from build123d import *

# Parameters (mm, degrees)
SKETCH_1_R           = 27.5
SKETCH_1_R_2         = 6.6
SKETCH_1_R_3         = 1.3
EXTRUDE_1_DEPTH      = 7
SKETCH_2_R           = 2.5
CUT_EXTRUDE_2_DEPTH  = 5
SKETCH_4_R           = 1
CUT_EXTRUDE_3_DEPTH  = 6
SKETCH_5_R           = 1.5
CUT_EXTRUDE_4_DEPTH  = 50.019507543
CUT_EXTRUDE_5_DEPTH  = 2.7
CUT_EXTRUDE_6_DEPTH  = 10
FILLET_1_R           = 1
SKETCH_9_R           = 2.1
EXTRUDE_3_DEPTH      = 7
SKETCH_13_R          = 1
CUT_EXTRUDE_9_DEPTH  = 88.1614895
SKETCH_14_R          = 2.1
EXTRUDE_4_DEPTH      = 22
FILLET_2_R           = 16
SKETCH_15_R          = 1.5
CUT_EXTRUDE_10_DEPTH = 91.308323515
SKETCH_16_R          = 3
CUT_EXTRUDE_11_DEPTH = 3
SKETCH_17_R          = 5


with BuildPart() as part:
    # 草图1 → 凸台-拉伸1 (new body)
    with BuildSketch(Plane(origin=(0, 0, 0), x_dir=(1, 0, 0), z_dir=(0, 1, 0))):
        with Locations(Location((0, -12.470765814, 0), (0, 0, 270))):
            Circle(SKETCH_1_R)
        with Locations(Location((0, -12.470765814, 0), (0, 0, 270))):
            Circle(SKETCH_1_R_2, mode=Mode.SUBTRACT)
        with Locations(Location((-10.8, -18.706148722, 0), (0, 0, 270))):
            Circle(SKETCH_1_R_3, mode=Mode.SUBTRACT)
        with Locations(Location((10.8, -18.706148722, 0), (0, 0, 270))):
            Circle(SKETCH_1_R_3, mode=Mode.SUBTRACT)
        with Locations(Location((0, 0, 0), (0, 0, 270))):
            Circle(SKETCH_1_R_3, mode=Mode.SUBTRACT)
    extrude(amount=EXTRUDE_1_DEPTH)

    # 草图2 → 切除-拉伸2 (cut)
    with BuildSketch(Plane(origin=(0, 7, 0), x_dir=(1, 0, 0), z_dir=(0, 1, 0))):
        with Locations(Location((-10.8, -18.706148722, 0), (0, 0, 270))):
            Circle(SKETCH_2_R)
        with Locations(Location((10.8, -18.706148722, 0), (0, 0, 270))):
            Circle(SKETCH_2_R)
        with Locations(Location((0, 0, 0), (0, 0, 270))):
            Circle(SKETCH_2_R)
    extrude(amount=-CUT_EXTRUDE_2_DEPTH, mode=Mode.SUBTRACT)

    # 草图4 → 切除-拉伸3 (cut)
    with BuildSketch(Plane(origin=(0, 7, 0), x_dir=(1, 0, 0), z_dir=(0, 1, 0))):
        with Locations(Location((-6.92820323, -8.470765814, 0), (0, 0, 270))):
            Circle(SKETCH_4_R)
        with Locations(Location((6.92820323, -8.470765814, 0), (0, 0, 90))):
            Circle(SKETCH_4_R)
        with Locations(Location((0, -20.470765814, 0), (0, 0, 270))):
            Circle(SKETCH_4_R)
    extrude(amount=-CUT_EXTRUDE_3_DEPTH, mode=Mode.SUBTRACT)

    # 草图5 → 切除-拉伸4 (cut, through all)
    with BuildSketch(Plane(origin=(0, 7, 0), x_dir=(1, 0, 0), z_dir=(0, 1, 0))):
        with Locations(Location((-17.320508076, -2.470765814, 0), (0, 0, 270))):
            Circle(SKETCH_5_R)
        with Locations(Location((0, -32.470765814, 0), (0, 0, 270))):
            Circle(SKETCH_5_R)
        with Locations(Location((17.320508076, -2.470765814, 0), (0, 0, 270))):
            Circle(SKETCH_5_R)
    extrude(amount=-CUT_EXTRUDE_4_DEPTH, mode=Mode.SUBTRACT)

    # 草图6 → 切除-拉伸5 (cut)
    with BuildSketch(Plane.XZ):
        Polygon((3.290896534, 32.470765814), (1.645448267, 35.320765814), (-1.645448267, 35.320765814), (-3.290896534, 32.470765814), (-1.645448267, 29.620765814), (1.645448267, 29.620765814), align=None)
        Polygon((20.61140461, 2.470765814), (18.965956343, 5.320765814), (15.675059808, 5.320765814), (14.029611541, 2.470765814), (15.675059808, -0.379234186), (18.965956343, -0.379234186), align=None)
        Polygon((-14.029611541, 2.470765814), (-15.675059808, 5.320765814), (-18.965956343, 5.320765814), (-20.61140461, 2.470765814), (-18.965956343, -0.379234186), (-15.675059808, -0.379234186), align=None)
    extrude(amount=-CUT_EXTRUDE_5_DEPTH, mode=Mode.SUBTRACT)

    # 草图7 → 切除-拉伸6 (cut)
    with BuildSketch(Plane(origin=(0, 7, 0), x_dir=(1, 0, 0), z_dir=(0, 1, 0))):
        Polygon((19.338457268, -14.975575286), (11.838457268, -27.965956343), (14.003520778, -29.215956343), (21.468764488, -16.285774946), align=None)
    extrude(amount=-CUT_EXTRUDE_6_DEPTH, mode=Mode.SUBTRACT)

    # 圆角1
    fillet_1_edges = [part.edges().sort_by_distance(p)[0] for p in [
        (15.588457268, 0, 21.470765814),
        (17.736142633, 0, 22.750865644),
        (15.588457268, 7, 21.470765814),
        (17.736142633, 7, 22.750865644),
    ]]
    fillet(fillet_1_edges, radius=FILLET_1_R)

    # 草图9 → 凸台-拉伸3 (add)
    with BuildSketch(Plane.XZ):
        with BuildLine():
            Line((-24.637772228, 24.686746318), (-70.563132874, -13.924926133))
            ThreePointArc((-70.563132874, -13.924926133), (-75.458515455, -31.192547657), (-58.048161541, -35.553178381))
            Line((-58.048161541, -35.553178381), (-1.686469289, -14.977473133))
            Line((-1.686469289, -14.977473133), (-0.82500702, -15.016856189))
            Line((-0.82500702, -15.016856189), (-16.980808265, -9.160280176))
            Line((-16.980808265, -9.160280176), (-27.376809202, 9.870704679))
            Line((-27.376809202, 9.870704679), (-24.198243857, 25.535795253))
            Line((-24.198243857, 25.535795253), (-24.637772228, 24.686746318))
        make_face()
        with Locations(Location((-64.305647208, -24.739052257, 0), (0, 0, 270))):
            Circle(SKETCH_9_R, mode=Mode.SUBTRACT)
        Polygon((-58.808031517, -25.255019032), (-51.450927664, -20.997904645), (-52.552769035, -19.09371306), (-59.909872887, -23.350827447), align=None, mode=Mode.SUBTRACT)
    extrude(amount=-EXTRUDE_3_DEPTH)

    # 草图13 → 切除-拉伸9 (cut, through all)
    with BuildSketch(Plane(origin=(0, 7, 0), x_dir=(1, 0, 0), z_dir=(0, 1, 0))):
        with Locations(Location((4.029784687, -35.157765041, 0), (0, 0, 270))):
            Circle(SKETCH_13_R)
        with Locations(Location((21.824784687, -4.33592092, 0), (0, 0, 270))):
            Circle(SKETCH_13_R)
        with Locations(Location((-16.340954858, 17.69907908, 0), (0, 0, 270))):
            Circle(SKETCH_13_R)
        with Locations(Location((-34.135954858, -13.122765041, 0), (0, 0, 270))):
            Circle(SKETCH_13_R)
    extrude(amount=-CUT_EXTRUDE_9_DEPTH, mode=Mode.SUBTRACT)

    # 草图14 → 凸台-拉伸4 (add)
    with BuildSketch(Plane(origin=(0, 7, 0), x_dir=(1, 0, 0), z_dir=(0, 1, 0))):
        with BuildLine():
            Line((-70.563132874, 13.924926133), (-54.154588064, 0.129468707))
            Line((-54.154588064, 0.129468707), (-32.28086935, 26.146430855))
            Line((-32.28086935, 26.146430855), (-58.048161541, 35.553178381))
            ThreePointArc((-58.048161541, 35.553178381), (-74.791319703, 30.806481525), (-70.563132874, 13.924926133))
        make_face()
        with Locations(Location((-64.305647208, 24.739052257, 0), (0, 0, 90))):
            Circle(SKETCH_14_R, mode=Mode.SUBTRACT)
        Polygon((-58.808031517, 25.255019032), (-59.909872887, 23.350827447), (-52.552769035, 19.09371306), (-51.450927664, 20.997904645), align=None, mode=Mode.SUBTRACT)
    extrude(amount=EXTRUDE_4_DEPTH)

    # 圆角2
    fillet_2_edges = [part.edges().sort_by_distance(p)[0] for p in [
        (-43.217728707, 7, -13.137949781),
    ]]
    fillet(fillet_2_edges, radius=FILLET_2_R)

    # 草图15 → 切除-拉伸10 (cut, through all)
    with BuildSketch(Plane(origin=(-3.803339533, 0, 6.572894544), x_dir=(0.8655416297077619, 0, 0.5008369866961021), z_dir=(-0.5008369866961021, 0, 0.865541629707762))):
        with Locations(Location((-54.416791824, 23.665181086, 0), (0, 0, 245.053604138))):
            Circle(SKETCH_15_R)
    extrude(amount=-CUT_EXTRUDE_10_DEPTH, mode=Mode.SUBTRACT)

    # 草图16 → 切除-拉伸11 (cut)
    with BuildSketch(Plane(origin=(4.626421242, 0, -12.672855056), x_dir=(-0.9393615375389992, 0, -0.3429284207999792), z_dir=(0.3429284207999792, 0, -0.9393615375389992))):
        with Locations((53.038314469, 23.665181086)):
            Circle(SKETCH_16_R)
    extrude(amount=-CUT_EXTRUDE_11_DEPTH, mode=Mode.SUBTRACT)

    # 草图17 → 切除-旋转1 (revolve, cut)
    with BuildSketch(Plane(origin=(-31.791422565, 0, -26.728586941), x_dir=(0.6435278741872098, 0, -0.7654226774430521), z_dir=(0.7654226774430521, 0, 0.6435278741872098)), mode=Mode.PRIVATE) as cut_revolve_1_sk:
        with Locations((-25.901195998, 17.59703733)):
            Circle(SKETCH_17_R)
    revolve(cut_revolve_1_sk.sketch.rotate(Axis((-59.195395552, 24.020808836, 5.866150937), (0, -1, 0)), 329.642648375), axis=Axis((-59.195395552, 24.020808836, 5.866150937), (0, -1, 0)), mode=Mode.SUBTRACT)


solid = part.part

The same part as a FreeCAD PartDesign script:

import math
import FreeCAD as App
import Part
import Sketcher
from FreeCAD import Vector
Q = App.Units.Quantity


def edges_at(feature, points):
    """Names of the edges that pass closest to the given points."""
    edges = feature.Shape.Edges
    near = lambda p: min(range(len(edges)), key=lambda i: edges[i].distToShape(Part.Vertex(*p))[0])
    return sorted({f"Edge{near(p) + 1}" for p in points})


def add_polygon(sketch, points):
    """Adds a closed chain of lines whose ends are joined by coincident constraints."""
    first, n = sketch.GeometryCount, len(points)
    for a, b in zip(points, points[1:] + points[:1]):
        sketch.addGeometry(Part.LineSegment(App.Vector(*a, 0), App.Vector(*b, 0)), False)
    for i in range(n):
        sketch.addConstraint(Sketcher.Constraint("Coincident", first + i, 2, first + (i + 1) % n, 1))

doc = App.newDocument("Part")
body = doc.addObject("PartDesign::Body", "Body")

sketch1 = doc.addObject("Sketcher::SketchObject", "Sketch")
body.addObject(sketch1)
sketch1.AttachmentSupport = (doc.XZ_Plane, [""])
sketch1.MapMode = "FlatFace"
sketch1.addGeometry([
    Part.Circle(Vector(0, 12.5, 0), Vector(0, 0, 1), 27.5),
    Part.Circle(Vector(0, 0, 0), Vector(0, 0, 1), 1.3),
    Part.Circle(Vector(-10.8, 18.7, 0), Vector(0, 0, 1), 1.3),
    Part.Circle(Vector(0, 12.5, 0), Vector(0, 0, 1), 6.6),
    Part.Circle(Vector(10.8, 18.7, 0), Vector(0, 0, 1), 1.3),
], False)
sketch1.addConstraint([
    Sketcher.Constraint("Coincident", 1, 3, -1, 1),
    Sketcher.Constraint("Coincident", 3, 3, 0, 3),
    Sketcher.Constraint("Equal", 1, 2),
    Sketcher.Constraint("Equal", 2, 4),
    Sketcher.Constraint("Symmetric", 2, 3, 4, 3, -2),
    Sketcher.Constraint("PointOnObject", 0, 3, -2),
    Sketcher.Constraint("Diameter", 0, Q("55 mm")),
    Sketcher.Constraint("Diameter", 1, Q("2.6 mm")),
    Sketcher.Constraint("Diameter", 3, Q("13.2 mm")),
    Sketcher.Constraint("DistanceX", 2, 3, -1, 1, Q("10.8 mm")),
    Sketcher.Constraint("DistanceY", -1, 1, 2, 3, Q("18.706149 mm")),
    Sketcher.Constraint("DistanceY", -1, 1, 0, 3, Q("12.470766 mm")),
])
pad1 = doc.addObject("PartDesign::Pad", "Pad")
body.addObject(pad1)
pad1.Profile = sketch1
pad1.Length = 7
pad1.Reversed = True

sketch2 = doc.addObject("Sketcher::SketchObject", "Sketch001")
body.addObject(sketch2)
sketch2.AttachmentSupport = (doc.XZ_Plane, [""])
sketch2.MapMode = "FlatFace"
sketch2.AttachmentOffset = App.Placement(Vector(0, 0, -7), App.Rotation())
sketch2.addGeometry([
    Part.Circle(Vector(-10.8, 18.7, 0), Vector(0, 0, 1), 2.5),
    Part.Circle(Vector(10.8, 18.7, 0), Vector(0, 0, 1), 2.5),
    Part.Circle(Vector(0, 0, 0), Vector(0, 0, 1), 2.5),
], False)
sketch2.addConstraint([
    Sketcher.Constraint("Coincident", 2, 3, -1, 1),
    Sketcher.Constraint("Equal", 0, 1),
    Sketcher.Constraint("Equal", 1, 2),
    Sketcher.Constraint("Symmetric", 0, 3, 1, 3, -2),
    Sketcher.Constraint("Diameter", 0, Q("5 mm")),
    Sketcher.Constraint("DistanceX", 0, 3, -1, 1, Q("10.8 mm")),
    Sketcher.Constraint("DistanceY", -1, 1, 0, 3, Q("18.706149 mm")),
])
pocket1 = doc.addObject("PartDesign::Pocket", "Pocket")
body.addObject(pocket1)
pocket1.Profile = sketch2
pocket1.Length = 5
pocket1.Reversed = True

sketch3 = doc.addObject("Sketcher::SketchObject", "Sketch002")
body.addObject(sketch3)
sketch3.AttachmentSupport = (doc.XZ_Plane, [""])
sketch3.MapMode = "FlatFace"
sketch3.AttachmentOffset = App.Placement(Vector(0, 0, -7), App.Rotation())
sketch3.addGeometry([
    Part.Circle(Vector(-6.9, 8.5, 0), Vector(0, 0, 1), 1),
    Part.Circle(Vector(6.9, 8.5, 0), Vector(0, 0, 1), 1),
    Part.Circle(Vector(0, 20.5, 0), Vector(0, 0, 1), 1),
], False)
sketch3.addConstraint([
    Sketcher.Constraint("Equal", 0, 1),
    Sketcher.Constraint("Equal", 1, 2),
    Sketcher.Constraint("Symmetric", 0, 3, 1, 3, -2),
    Sketcher.Constraint("PointOnObject", 2, 3, -2),
    Sketcher.Constraint("Diameter", 0, Q("2 mm")),
    Sketcher.Constraint("DistanceY", 0, 3, 2, 3, Q("12 mm")),
    Sketcher.Constraint("DistanceX", 0, 3, -1, 1, Q("6.928203 mm")),
    Sketcher.Constraint("DistanceY", -1, 1, 0, 3, Q("8.470766 mm")),
])
pocket2 = doc.addObject("PartDesign::Pocket", "Pocket001")
body.addObject(pocket2)
pocket2.Profile = sketch3
pocket2.Length = 6
pocket2.Reversed = True

sketch4 = doc.addObject("Sketcher::SketchObject", "Sketch003")
body.addObject(sketch4)
sketch4.AttachmentSupport = (doc.XZ_Plane, [""])
sketch4.MapMode = "FlatFace"
sketch4.AttachmentOffset = App.Placement(Vector(0, 0, -7), App.Rotation())
sketch4.addGeometry([
    Part.Circle(Vector(-17.3, 2.5, 0), Vector(0, 0, 1), 1.5),
    Part.Circle(Vector(0, 32.5, 0), Vector(0, 0, 1), 1.5),
    Part.Circle(Vector(17.3, 2.5, 0), Vector(0, 0, 1), 1.5),
], False)
sketch4.addConstraint([
    Sketcher.Constraint("Equal", 0, 1),
    Sketcher.Constraint("Equal", 1, 2),
    Sketcher.Constraint("Symmetric", 0, 3, 2, 3, -2),
    Sketcher.Constraint("PointOnObject", 1, 3, -2),
    Sketcher.Constraint("Diameter", 0, Q("3 mm")),
    Sketcher.Constraint("DistanceY", 0, 3, 1, 3, Q("30 mm")),
    Sketcher.Constraint("DistanceX", 0, 3, -1, 1, Q("17.320508 mm")),
    Sketcher.Constraint("DistanceY", -1, 1, 0, 3, Q("2.470766 mm")),
])
pocket3 = doc.addObject("PartDesign::Pocket", "Pocket002")
body.addObject(pocket3)
pocket3.Profile = sketch4
pocket3.Type = "ThroughAll"
pocket3.Reversed = True

sketch5 = doc.addObject("Sketcher::SketchObject", "Sketch004")
body.addObject(sketch5)
sketch5.AttachmentSupport = (doc.XZ_Plane, [""])
sketch5.MapMode = "FlatFace"
add_polygon(sketch5, [(3.3, 32.5), (1.6, 35.3), (-1.6, 35.3), (-3.3, 32.5), (-1.6, 29.6), (1.6, 29.6)])
add_polygon(sketch5, [(20.6, 2.5), (19, 5.3), (15.7, 5.3), (14, 2.5), (15.7, -0.4), (19, -0.4)])
add_polygon(sketch5, [(-14, 2.5), (-15.7, 5.3), (-19, 5.3), (-20.6, 2.5), (-19, -0.4), (-15.7, -0.4)])
sketch5.addConstraint([
    Sketcher.Constraint("Horizontal", 1),
    Sketcher.Constraint("Horizontal", 4),
    Sketcher.Constraint("Horizontal", 7),
    Sketcher.Constraint("Horizontal", 10),
    Sketcher.Constraint("Horizontal", 13),
    Sketcher.Constraint("Horizontal", 16),
    Sketcher.Constraint("Symmetric", 2, 2, 5, 2, -2),
    Sketcher.Constraint("Symmetric", 7, 2, 12, 2, -2),
    Sketcher.Constraint("Symmetric", 11, 2, 14, 2, -2),
    Sketcher.Constraint("Symmetric", 10, 2, 15, 2, -2),
    Sketcher.Constraint("Symmetric", 8, 2, 17, 2, -2),
    Sketcher.Constraint("Parallel", 0, 3),
    Sketcher.Constraint("Parallel", 2, 5),
    Sketcher.Constraint("Parallel", 3, 6),
    Sketcher.Constraint("Parallel", 5, 8),
    Sketcher.Constraint("Parallel", 6, 9),
    Sketcher.Constraint("Parallel", 8, 11),
    Sketcher.Constraint("Parallel", 9, 12),
    Sketcher.Constraint("Parallel", 11, 14),
    Sketcher.Constraint("Parallel", 14, 17),
    Sketcher.Constraint("Horizontal", 8, 2, 11, 2),
    Sketcher.Constraint("Vertical", 1, 2, 3, 2),
    Sketcher.Constraint("Vertical", 7, 2, 9, 2),
    Sketcher.Constraint("Equal", 4, 7),
    Sketcher.Constraint("Equal", 5, 6),
    Sketcher.Constraint("Angle", 0, Q("120 deg")),
    Sketcher.Constraint("DistanceY", 6, 2, 0, 2, Q("30 mm")),
    Sketcher.Constraint("DistanceY", 3, 2, 1, 2, Q("5.7 mm")),
    Sketcher.Constraint("DistanceX", 1, 2, 1, 1, Q("3.290897 mm")),
    Sketcher.Constraint("DistanceX", -1, 1, 7, 2, Q("15.67506 mm")),
    Sketcher.Constraint("DistanceY", -1, 1, 0, 2, Q("35.320766 mm")),
])
pocket4 = doc.addObject("PartDesign::Pocket", "Pocket003")
body.addObject(pocket4)
pocket4.Profile = sketch5
pocket4.Length = 2.7

sketch6 = doc.addObject("Sketcher::SketchObject", "Sketch005")
body.addObject(sketch6)
sketch6.AttachmentSupport = (doc.XZ_Plane, [""])
sketch6.MapMode = "FlatFace"
sketch6.AttachmentOffset = App.Placement(Vector(0, 0, -7), App.Rotation())
add_polygon(sketch6, [(19.3, 15), (11.8, 28), (14, 29.2), (21.5, 16.3)])
sketch6.addConstraint([
    Sketcher.Constraint("Perpendicular", 0, 1),
    Sketcher.Constraint("Perpendicular", 1, 2),
    Sketcher.Constraint("Angle", 0, Q("120 deg")),
    Sketcher.Constraint("Distance", 0, Q("15 mm")),
    Sketcher.Constraint("Distance", 1, Q("2.5 mm")),
    Sketcher.Constraint("DistanceY", 3, 2, 2, 2, Q("1.3102 mm")),
    Sketcher.Constraint("DistanceX", -1, 1, 1, 2, Q("14.003521 mm")),
    Sketcher.Constraint("DistanceY", -1, 1, 0, 2, Q("27.965956 mm")),
])
pocket5 = doc.addObject("PartDesign::Pocket", "Pocket004")
body.addObject(pocket5)
pocket5.Profile = sketch6
pocket5.Length = 10
pocket5.Reversed = True
doc.recompute()

fillet = doc.addObject("PartDesign::Fillet", "Fillet")
body.addObject(fillet)
fillet.Base = (pocket5, edges_at(pocket5, [
    (15.588, 0, 21.471),
    (17.736, 0, 22.751),
    (15.588, 7, 21.471),
    (17.736, 7, 22.751),
]))
fillet.Radius = 1

sketch7 = doc.addObject("Sketcher::SketchObject", "Sketch006")
body.addObject(sketch7)
sketch7.AttachmentSupport = (doc.XZ_Plane, [""])
sketch7.MapMode = "FlatFace"
sketch7.addGeometry(Part.LineSegment(Vector(-24.6, 24.7, 0), Vector(-70.6, -13.9, 0)), False)
sketch7.addGeometry(Part.ArcOfCircle(Part.Circle(Vector(-64.6, -24.9, 0), Vector(0, 0, 1), 12.5), math.radians(118), math.radians(302)), False)
sketch7.addGeometry(Part.LineSegment(Vector(-58, -35.6, 0), Vector(-1.7, -15, 0)), False)
sketch7.addGeometry(Part.LineSegment(Vector(-1.7, -15, 0), Vector(-0.8, -15, 0)), False)
sketch7.addGeometry(Part.LineSegment(Vector(-0.8, -15, 0), Vector(-17, -9.2, 0)), False)
sketch7.addGeometry(Part.LineSegment(Vector(-17, -9.2, 0), Vector(-27.4, 9.9, 0)), False)
sketch7.addGeometry(Part.LineSegment(Vector(-27.4, 9.9, 0), Vector(-24.2, 25.5, 0)), False)
sketch7.addGeometry(Part.LineSegment(Vector(-24.2, 25.5, 0), Vector(-24.6, 24.7, 0)), False)
sketch7.addGeometry(Part.Circle(Vector(-64.3, -24.7, 0), Vector(0, 0, 1), 2.1), False)
add_polygon(sketch7, [(-51.5, -21), (-58.8, -25.3), (-59.9, -23.4), (-52.6, -19.1)])
sketch7.addConstraint([
    Sketcher.Constraint("Coincident", 0, 2, 1, 1),
    Sketcher.Constraint("Coincident", 1, 2, 2, 1),
    Sketcher.Constraint("Coincident", 2, 2, 3, 1),
    Sketcher.Constraint("Coincident", 3, 2, 4, 1),
    Sketcher.Constraint("Coincident", 4, 2, 5, 1),
    Sketcher.Constraint("Coincident", 5, 2, 6, 1),
    Sketcher.Constraint("Coincident", 6, 2, 7, 1),
    Sketcher.Constraint("Coincident", 7, 2, 0, 1),
    Sketcher.Constraint("Perpendicular", 9, 10),
    Sketcher.Constraint("Perpendicular", 10, 11),
    Sketcher.Constraint("Perpendicular", 11, 12),
    Sketcher.Constraint("Equal", 0, 2),
    Sketcher.Constraint("Diameter", 8, Q("4.2 mm")),
    Sketcher.Constraint("Radius", 1, Q("12.5 mm")),
    Sketcher.Constraint("Distance", 0, Q("60 mm")),
    Sketcher.Constraint("Distance", 9, Q("8.5 mm")),
    Sketcher.Constraint("Distance", 10, Q("2.2 mm")),
    Sketcher.Constraint("DistanceX", 5, 2, 4, 2, Q("10.396001 mm")),
    Sketcher.Constraint("DistanceX", 4, 2, 3, 2, Q("16.155801 mm")),
    Sketcher.Constraint("DistanceY", 1, 2, 4, 2, Q("26.392898 mm")),
    Sketcher.Constraint("DistanceX", 0, 2, 9, 2, Q("11.755101 mm")),
    Sketcher.Constraint("DistanceY", 10, 2, 0, 2, Q("9.425901 mm")),
    Sketcher.Constraint("Distance", 4, Q("17.184569 mm")),
    Sketcher.Constraint("Distance", 5, Q("21.685369 mm")),
    Sketcher.Constraint("Distance", 7, Q("0.95607 mm")),
    Sketcher.Constraint("DistanceX", 1, 2, -1, 1, Q("58.048162 mm")),
    Sketcher.Constraint("DistanceY", 1, 2, -1, 1, Q("35.553178 mm")),
    Sketcher.Constraint("DistanceX", 2, 2, -1, 1, Q("1.686469 mm")),
    Sketcher.Constraint("DistanceX", 4, 2, -1, 1, Q("16.980808 mm")),
    Sketcher.Constraint("DistanceX", 9, 2, -1, 1, Q("58.808032 mm")),
    Sketcher.Constraint("DistanceY", 9, 2, -1, 1, Q("25.255019 mm")),
    Sketcher.Constraint("DistanceX", 11, 2, -1, 1, Q("52.552769 mm")),
    Sketcher.Constraint("DistanceY", 8, 3, 2, 2, Q("9.761579 mm")),
    Sketcher.Constraint("DistanceX", 8, 3, 3, 2, Q("63.48064 mm")),
    Sketcher.Constraint("DistanceY", 5, 2, 6, 2, Q("15.665091 mm")),
    Sketcher.Constraint("DistanceX", 0, 2, 6, 2, Q("46.364889 mm")),
])
pad2 = doc.addObject("PartDesign::Pad", "Pad001")
body.addObject(pad2)
pad2.Profile = sketch7
pad2.Length = 7
pad2.Reversed = True

sketch8 = doc.addObject("Sketcher::SketchObject", "Sketch007")
body.addObject(sketch8)
sketch8.AttachmentSupport = (doc.XZ_Plane, [""])
sketch8.MapMode = "FlatFace"
sketch8.AttachmentOffset = App.Placement(Vector(0, 0, -7), App.Rotation())
sketch8.addGeometry([
    Part.Circle(Vector(4, 35.2, 0), Vector(0, 0, 1), 1),
    Part.Circle(Vector(21.8, 4.3, 0), Vector(0, 0, 1), 1),
    Part.Circle(Vector(-16.3, -17.7, 0), Vector(0, 0, 1), 1),
    Part.Circle(Vector(-34.1, 13.1, 0), Vector(0, 0, 1), 1),
], False)
sketch8.addConstraint([
    Sketcher.Constraint("Equal", 0, 1),
    Sketcher.Constraint("Equal", 1, 2),
    Sketcher.Constraint("Equal", 2, 3),
    Sketcher.Constraint("Diameter", 0, Q("2 mm")),
    Sketcher.Constraint("DistanceX", 0, 3, 1, 3, Q("17.795 mm")),
    Sketcher.Constraint("DistanceY", 2, 3, 1, 3, Q("22.035 mm")),
    Sketcher.Constraint("DistanceX", 3, 3, 2, 3, Q("17.795 mm")),
    Sketcher.Constraint("DistanceY", 3, 3, 0, 3, Q("22.035 mm")),
    Sketcher.Constraint("DistanceY", -1, 1, 1, 3, Q("4.335921 mm")),
    Sketcher.Constraint("DistanceX", 2, 3, 1, 3, Q("38.16574 mm")),
    Sketcher.Constraint("DistanceX", -1, 1, 0, 3, Q("4.029785 mm")),
    Sketcher.Constraint("DistanceY", -1, 1, 0, 3, Q("35.157765 mm")),
])
pocket6 = doc.addObject("PartDesign::Pocket", "Pocket005")
body.addObject(pocket6)
pocket6.Profile = sketch8
pocket6.Type = "ThroughAll"
pocket6.Reversed = True

sketch9 = doc.addObject("Sketcher::SketchObject", "Sketch008")
body.addObject(sketch9)
sketch9.AttachmentSupport = (doc.XZ_Plane, [""])
sketch9.MapMode = "FlatFace"
sketch9.AttachmentOffset = App.Placement(Vector(0, 0, -7), App.Rotation())
sketch9.addGeometry(Part.LineSegment(Vector(-70.6, -13.9, 0), Vector(-54.2, -0.1, 0)), False)
sketch9.addGeometry(Part.LineSegment(Vector(-54.2, -0.1, 0), Vector(-32.3, -26.1, 0)), False)
sketch9.addGeometry(Part.LineSegment(Vector(-32.3, -26.1, 0), Vector(-58, -35.6, 0)), False)
sketch9.addGeometry(Part.ArcOfCircle(Part.Circle(Vector(-64, -24.5, 0), Vector(0, 0, 1), 12.5), math.radians(122), math.radians(298)), False)
add_polygon(sketch9, [(-59.9, -23.4), (-58.8, -25.3), (-51.5, -21), (-52.6, -19.1)])
sketch9.addGeometry(Part.Circle(Vector(-64.3, -24.7, 0), Vector(0, 0, 1), 2.1), False)
sketch9.addConstraint([
    Sketcher.Constraint("Coincident", 0, 2, 1, 1),
    Sketcher.Constraint("Coincident", 1, 2, 2, 1),
    Sketcher.Constraint("Coincident", 2, 2, 3, 2),
    Sketcher.Constraint("Coincident", 3, 1, 0, 1),
    Sketcher.Constraint("Perpendicular", 0, 1),
    Sketcher.Constraint("Perpendicular", 4, 5),
    Sketcher.Constraint("Perpendicular", 5, 6),
    Sketcher.Constraint("Perpendicular", 6, 7),
    Sketcher.Constraint("Diameter", 8, Q("4.2 mm")),
    Sketcher.Constraint("Radius", 3, Q("12.5 mm")),
    Sketcher.Constraint("Distance", 4, Q("2.2 mm")),
    Sketcher.Constraint("Distance", 5, Q("8.5 mm")),
    Sketcher.Constraint("DistanceY", 4, 2, 3, 3, Q("0.709 mm")),
    Sketcher.Constraint("DistanceX", 3, 1, 4, 2, Q("11.755101 mm")),
    Sketcher.Constraint("Distance", 1, Q("33.990321 mm")),
    Sketcher.Constraint("DistanceX", 3, 3, -1, 1, Q("63.972049 mm")),
    Sketcher.Constraint("DistanceY", 3, 3, -1, 1, Q("24.546019 mm")),
    Sketcher.Constraint("DistanceX", 0, 2, -1, 1, Q("54.154588 mm")),
    Sketcher.Constraint("DistanceY", 0, 2, -1, 1, Q("0.129469 mm")),
    Sketcher.Constraint("DistanceX", 1, 2, -1, 1, Q("32.280869 mm")),
    Sketcher.Constraint("DistanceX", 2, 2, -1, 1, Q("58.048162 mm")),
    Sketcher.Constraint("DistanceX", 6, 2, -1, 1, Q("52.552769 mm")),
    Sketcher.Constraint("DistanceX", 8, 3, 0, 2, Q("10.151059 mm")),
    Sketcher.Constraint("DistanceY", 1, 2, 8, 3, Q("1.407379 mm")),
])
pad3 = doc.addObject("PartDesign::Pad", "Pad002")
body.addObject(pad3)
pad3.Profile = sketch9
pad3.Length = 22
pad3.Reversed = True
doc.recompute()

fillet2 = doc.addObject("PartDesign::Fillet", "Fillet001")
body.addObject(fillet2)
fillet2.Base = (pad3, edges_at(pad3, [(-43.218, 7, -13.138)]))
fillet2.Radius = 16

sketch10 = doc.addObject("Sketcher::SketchObject", "Sketch009")
body.addObject(sketch10)
sketch10.Placement = App.Placement(Vector(-3.80334, 0, 6.572895), App.Rotation(Vector(0.86554163, 0, 0.500836987), Vector(0, 1.000000001, 0), Vector(-0.500836987, 0, 0.86554163), "ZXY"))
sketch10.addGeometry(Part.Circle(Vector(-54.4, 23.7, 0), Vector(0, 0, 1), 1.5), False)
sketch10.addConstraint([
    Sketcher.Constraint("Diameter", 0, Q("3 mm")),
    Sketcher.Constraint("DistanceX", 0, 3, -1, 1, Q("54.416792 mm")),
    Sketcher.Constraint("DistanceY", -1, 1, 0, 3, Q("23.665181 mm")),
])
pocket7 = doc.addObject("PartDesign::Pocket", "Pocket006")
body.addObject(pocket7)
pocket7.Profile = sketch10
pocket7.Type = "ThroughAll"

sketch11 = doc.addObject("Sketcher::SketchObject", "Sketch010")
body.addObject(sketch11)
sketch11.Placement = App.Placement(Vector(4.626421, 0, -12.672855), App.Rotation(Vector(-0.939361538, 0, -0.342928421), Vector(0, 1.000000001, 0), Vector(0.342928421, 0, -0.939361538), "ZXY"))
sketch11.addGeometry(Part.Circle(Vector(53, 23.7, 0), Vector(0, 0, 1), 3), False)
sketch11.addConstraint([
    Sketcher.Constraint("Diameter", 0, Q("6 mm")),
    Sketcher.Constraint("DistanceY", -1, 1, 0, 3, Q("23.665181 mm")),
    Sketcher.Constraint("DistanceX", -1, 1, 0, 3, Q("53.038315 mm")),
])
pocket8 = doc.addObject("PartDesign::Pocket", "Pocket007")
body.addObject(pocket8)
pocket8.Profile = sketch11
pocket8.Length = 3

sketch12 = doc.addObject("Sketcher::SketchObject", "Sketch011")
body.addObject(sketch12)
sketch12.Placement = App.Placement(Vector(-31.791423, 0, -26.728587), App.Rotation(Vector(0.643527874, 0, -0.765422677), Vector(0, 0.999999999, 0), Vector(0.765422677, 0, 0.643527874), "ZXY"))
sketch12.addGeometry(Part.Circle(Vector(-26, 18, 0), Vector(0, 0, 1), 5), False)
sketch12.addGeometry(Part.LineSegment(Vector(-43, 18, 0), Vector(-43, 8, 0)), True)
sketch12.addConstraint([
    Sketcher.Constraint("Vertical", 1),
    Sketcher.Constraint("Horizontal", 0, 3, 1, 1),
    Sketcher.Constraint("Diameter", 0, Q("10 mm")),
    Sketcher.Constraint("DistanceY", 1, 2, 1, 1, Q("10 mm")),
    Sketcher.Constraint("DistanceX", 1, 1, -1, 1, Q("42.583972 mm")),
    Sketcher.Constraint("DistanceX", 0, 3, -1, 1, Q("25.901196 mm")),
    Sketcher.Constraint("DistanceY", -1, 1, 0, 3, Q("17.597037 mm")),
])
groove = doc.addObject("PartDesign::Groove", "Groove")
body.addObject(groove)
groove.Profile = sketch12
groove.ReferenceAxis = (sketch12, ["Axis0"])
groove.Angle = 360

doc.recompute()
